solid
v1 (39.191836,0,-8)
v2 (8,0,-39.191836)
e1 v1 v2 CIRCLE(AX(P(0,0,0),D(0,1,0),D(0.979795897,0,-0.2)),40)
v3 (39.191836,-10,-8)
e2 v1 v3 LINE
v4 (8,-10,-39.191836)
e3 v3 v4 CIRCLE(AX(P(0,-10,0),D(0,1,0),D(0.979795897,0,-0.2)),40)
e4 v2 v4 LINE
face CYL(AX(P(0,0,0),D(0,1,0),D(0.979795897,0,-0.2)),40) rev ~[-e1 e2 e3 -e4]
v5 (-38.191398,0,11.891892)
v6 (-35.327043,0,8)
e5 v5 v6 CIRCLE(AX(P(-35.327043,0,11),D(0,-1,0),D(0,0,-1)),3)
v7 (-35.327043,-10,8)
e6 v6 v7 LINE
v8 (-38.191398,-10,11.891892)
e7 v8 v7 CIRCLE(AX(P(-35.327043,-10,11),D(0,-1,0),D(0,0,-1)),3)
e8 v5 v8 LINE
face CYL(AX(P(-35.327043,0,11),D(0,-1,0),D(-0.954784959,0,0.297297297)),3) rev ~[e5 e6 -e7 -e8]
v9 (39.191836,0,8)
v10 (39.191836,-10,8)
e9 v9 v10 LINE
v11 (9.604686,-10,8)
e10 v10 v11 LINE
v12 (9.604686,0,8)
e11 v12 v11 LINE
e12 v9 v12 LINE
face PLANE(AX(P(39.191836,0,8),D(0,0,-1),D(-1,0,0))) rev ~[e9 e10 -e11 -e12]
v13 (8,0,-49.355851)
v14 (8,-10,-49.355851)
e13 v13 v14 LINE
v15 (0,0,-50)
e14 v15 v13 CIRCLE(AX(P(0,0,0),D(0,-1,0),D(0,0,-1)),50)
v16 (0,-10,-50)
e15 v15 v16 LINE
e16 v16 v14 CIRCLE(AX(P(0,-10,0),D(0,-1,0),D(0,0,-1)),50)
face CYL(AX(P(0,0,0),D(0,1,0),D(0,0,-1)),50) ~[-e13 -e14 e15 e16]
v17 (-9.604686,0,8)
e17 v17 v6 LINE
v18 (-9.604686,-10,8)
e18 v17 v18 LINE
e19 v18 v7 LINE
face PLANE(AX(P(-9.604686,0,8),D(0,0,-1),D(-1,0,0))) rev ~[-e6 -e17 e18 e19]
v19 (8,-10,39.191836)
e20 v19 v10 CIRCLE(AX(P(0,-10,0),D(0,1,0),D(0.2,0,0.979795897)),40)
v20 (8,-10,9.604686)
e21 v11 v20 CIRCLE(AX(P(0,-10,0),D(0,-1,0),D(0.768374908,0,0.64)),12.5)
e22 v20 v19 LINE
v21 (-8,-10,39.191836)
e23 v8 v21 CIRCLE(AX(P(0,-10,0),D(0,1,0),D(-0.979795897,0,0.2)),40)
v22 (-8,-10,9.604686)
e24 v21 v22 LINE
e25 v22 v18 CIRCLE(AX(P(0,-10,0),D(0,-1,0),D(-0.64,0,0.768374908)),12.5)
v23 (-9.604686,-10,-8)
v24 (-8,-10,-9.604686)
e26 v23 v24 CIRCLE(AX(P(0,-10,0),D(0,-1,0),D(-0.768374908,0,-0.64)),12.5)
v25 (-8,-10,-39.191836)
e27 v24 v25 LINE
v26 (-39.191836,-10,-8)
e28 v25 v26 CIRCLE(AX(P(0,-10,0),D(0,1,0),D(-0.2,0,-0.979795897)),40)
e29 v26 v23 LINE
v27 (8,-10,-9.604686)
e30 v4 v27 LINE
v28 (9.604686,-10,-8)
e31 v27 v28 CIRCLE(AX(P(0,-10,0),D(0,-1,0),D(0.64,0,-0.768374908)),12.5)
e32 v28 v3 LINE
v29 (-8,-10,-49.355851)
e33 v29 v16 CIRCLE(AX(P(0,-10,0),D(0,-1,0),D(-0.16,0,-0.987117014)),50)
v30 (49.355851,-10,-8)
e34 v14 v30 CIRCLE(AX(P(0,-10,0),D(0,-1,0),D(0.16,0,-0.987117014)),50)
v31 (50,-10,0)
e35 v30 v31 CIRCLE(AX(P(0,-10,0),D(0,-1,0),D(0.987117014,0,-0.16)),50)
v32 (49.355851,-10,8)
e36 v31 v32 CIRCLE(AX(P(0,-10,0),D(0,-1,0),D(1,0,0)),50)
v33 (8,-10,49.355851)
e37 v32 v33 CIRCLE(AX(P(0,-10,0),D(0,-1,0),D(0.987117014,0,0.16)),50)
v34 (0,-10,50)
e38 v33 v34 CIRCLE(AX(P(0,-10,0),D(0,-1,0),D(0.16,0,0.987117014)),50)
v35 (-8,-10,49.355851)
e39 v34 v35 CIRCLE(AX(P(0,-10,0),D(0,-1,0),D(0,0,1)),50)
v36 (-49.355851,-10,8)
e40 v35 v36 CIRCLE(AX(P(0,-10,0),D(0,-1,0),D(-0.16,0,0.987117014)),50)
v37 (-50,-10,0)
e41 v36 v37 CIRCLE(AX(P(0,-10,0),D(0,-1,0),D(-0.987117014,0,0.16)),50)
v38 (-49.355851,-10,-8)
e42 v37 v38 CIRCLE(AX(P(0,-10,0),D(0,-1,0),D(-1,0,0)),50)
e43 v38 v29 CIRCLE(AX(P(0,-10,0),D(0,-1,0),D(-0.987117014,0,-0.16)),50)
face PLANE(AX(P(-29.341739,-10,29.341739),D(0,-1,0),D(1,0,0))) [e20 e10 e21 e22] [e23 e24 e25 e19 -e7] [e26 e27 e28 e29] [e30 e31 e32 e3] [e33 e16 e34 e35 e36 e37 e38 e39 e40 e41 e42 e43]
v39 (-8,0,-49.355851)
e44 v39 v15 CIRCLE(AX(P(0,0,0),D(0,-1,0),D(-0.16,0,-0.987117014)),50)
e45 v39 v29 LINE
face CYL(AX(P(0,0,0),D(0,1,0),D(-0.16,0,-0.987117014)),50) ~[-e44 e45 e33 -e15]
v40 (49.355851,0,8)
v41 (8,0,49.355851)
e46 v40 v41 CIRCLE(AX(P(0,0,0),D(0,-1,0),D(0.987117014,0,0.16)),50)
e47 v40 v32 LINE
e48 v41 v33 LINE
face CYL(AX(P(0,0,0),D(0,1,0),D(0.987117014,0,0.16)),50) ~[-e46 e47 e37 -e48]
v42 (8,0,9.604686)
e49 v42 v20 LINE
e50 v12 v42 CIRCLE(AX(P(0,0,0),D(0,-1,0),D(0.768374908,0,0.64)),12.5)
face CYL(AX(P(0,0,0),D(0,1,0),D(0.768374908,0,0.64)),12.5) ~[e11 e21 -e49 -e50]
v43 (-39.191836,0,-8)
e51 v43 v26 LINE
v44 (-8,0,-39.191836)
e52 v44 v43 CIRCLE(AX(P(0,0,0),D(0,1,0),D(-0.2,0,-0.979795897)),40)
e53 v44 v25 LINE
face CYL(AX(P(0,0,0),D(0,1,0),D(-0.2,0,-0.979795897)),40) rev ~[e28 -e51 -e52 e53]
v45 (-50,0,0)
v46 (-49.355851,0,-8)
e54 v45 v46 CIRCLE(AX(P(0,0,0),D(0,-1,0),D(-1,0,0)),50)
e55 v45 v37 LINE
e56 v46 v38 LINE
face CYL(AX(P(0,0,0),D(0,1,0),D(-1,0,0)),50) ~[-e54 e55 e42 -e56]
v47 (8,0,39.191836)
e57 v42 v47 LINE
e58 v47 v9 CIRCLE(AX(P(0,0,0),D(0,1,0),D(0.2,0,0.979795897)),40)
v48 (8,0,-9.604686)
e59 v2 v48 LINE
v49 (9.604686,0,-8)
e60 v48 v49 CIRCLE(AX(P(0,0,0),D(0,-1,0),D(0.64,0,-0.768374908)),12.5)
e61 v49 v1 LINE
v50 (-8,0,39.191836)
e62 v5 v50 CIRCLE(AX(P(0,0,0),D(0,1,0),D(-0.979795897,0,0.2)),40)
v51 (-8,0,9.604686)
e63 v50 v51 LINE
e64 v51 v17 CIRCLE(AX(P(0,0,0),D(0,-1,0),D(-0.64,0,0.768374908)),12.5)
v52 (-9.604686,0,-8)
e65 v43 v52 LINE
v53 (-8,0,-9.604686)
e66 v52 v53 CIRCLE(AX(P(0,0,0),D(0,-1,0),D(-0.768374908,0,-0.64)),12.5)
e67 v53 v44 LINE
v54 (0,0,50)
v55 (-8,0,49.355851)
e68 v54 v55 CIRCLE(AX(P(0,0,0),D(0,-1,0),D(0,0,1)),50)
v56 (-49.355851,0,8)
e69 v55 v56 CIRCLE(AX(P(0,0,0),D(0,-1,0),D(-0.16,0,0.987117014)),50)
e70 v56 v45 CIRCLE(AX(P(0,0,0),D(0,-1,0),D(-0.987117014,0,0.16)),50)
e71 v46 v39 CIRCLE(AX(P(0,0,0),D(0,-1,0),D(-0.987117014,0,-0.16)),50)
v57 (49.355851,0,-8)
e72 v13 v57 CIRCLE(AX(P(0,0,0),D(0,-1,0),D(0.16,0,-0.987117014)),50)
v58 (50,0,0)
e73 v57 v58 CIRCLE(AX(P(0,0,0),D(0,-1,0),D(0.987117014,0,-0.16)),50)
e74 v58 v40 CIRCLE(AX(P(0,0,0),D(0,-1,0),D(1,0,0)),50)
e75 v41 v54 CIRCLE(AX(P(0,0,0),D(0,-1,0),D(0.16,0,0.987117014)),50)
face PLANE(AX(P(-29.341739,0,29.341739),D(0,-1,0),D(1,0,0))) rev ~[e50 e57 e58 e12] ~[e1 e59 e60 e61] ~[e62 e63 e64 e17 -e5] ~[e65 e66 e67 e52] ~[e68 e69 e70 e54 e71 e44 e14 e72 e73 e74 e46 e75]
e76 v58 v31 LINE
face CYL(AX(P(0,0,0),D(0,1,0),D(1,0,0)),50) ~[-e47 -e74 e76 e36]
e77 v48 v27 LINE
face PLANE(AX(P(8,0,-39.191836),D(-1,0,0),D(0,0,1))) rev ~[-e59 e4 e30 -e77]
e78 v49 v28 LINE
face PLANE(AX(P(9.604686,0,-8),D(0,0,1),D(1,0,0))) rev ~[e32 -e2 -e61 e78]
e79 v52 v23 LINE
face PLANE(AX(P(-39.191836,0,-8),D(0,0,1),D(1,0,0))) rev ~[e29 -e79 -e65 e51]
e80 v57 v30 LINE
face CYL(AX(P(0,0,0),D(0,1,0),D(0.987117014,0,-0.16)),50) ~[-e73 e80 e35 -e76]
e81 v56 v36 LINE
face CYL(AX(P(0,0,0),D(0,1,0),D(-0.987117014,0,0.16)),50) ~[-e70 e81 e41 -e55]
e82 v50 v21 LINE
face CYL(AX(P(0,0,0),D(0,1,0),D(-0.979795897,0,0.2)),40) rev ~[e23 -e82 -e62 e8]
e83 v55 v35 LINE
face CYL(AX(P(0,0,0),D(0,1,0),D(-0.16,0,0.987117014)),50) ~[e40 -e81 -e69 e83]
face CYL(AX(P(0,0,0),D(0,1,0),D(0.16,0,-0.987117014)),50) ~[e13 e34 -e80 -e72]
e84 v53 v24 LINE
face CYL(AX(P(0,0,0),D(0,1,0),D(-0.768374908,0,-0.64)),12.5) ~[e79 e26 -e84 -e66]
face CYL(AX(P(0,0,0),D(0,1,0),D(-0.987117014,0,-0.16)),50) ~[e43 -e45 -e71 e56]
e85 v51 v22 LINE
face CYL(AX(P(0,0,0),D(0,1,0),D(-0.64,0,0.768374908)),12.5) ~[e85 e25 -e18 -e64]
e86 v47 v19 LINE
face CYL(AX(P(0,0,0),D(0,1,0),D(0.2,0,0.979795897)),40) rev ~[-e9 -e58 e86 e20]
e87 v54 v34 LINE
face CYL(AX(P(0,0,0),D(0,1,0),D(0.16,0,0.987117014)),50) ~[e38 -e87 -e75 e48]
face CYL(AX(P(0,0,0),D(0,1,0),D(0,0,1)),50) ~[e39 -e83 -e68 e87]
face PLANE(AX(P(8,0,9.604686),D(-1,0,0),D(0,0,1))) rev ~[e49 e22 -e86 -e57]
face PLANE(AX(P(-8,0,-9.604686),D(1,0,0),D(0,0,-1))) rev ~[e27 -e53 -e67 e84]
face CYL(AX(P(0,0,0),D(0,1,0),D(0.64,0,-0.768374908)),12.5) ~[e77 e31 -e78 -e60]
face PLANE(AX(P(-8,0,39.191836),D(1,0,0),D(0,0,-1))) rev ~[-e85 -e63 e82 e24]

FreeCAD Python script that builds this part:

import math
import FreeCAD as App
import Part
import Sketcher
from FreeCAD import Vector
Q = App.Units.Quantity


def edges_at(feature, points):
    """Names of the edges that pass closest to the given points."""
    edges = feature.Shape.Edges
    near = lambda p: min(range(len(edges)), key=lambda i: edges[i].distToShape(Part.Vertex(*p))[0])
    return sorted({f"Edge{near(p) + 1}" for p in points})

doc = App.newDocument("Part")
body = doc.addObject("PartDesign::Body", "Body")

sketch1 = body.newObject("Sketcher::SketchObject", "Sketch")
sketch1.AttachmentSupport = (doc.getObject("XZ_Plane"), [""])
sketch1.MapMode = "FlatFace"
sketch1.addGeometry(Part.ArcOfCircle(Part.Circle(Vector(0, 0, 0), Vector(0, 0, 1), 50), math.radians(-99.21), math.radians(-90)), False)
sketch1.addGeometry(Part.ArcOfCircle(Part.Circle(Vector(0, 0, 0), Vector(0, 0, 1), 50), math.radians(-90), math.radians(-80.79)), False)
sketch1.addGeometry(Part.ArcOfCircle(Part.Circle(Vector(0, 0, 0), Vector(0, 0, 1), 50), math.radians(-81), math.radians(-9)), False)
sketch1.addGeometry(Part.ArcOfCircle(Part.Circle(Vector(0, 0, 0), Vector(0, 0, 1), 50), math.radians(-9.21), math.radians(0)), False)
sketch1.addGeometry(Part.ArcOfCircle(Part.Circle(Vector(0, 0, 0), Vector(0, 0, 1), 50), math.radians(0), math.radians(9.21)), False)
sketch1.addGeometry(Part.ArcOfCircle(Part.Circle(Vector(0, 0, 0), Vector(0, 0, 1), 50), math.radians(9), math.radians(81)), False)
sketch1.addGeometry(Part.ArcOfCircle(Part.Circle(Vector(0, 0, 0), Vector(0, 0, 1), 50), math.radians(80.79), math.radians(90)), False)
sketch1.addGeometry(Part.ArcOfCircle(Part.Circle(Vector(0, 0, 0), Vector(0, 0, 1), 50), math.radians(90), math.radians(99.21)), False)
sketch1.addGeometry(Part.ArcOfCircle(Part.Circle(Vector(0, 0, 0), Vector(0, 0, 1), 50), math.radians(99), math.radians(171)), False)
sketch1.addGeometry(Part.ArcOfCircle(Part.Circle(Vector(0, 0, 0), Vector(0, 0, 1), 50), math.radians(170.79), math.radians(180)), False)
sketch1.addGeometry(Part.ArcOfCircle(Part.Circle(Vector(0, 0, 0), Vector(0, 0, 1), 50), math.radians(180), math.radians(189.21)), False)
sketch1.addGeometry(Part.ArcOfCircle(Part.Circle(Vector(0, 0, 0), Vector(0, 0, 1), 50), math.radians(-171), math.radians(-99)), False)
sketch1.addGeometry(Part.LineSegment(Vector(-8, -9.6, 0), Vector(-8, -39.2, 0)), False)
sketch1.addGeometry(Part.ArcOfCircle(Part.Circle(Vector(0, 0, 0), Vector(0, 0, 1), 40), math.radians(-168), math.radians(-102)), False)
sketch1.addGeometry(Part.LineSegment(Vector(-39.2, -8, 0), Vector(-9.6, -8, 0)), False)
sketch1.addGeometry(Part.ArcOfCircle(Part.Circle(Vector(0, 0, 0), Vector(0, 0, 1), 12.5), math.radians(-140.21), math.radians(-129.79)), False)
sketch1.addGeometry(Part.ArcOfCircle(Part.Circle(Vector(0, 0, 0), Vector(0, 0, 1), 40), math.radians(-78), math.radians(-12)), False)
sketch1.addGeometry(Part.LineSegment(Vector(8, -39.2, 0), Vector(8, -9.6, 0)), False)
sketch1.addGeometry(Part.ArcOfCircle(Part.Circle(Vector(0, 0, 0), Vector(0, 0, 1), 12.5), math.radians(-50.21), math.radians(-39.79)), False)
sketch1.addGeometry(Part.LineSegment(Vector(9.6, -8, 0), Vector(39.2, -8, 0)), False)
sketch1.addGeometry(Part.ArcOfCircle(Part.Circle(Vector(0, 0, 0), Vector(0, 0, 1), 40), math.radians(102), math.radians(168)), False)
sketch1.addGeometry(Part.LineSegment(Vector(-8, 39.2, 0), Vector(-8, 9.6, 0)), False)
sketch1.addGeometry(Part.ArcOfCircle(Part.Circle(Vector(0, 0, 0), Vector(0, 0, 1), 12.5), math.radians(129.79), math.radians(140.21)), False)
sketch1.addGeometry(Part.LineSegment(Vector(-9.6, 8, 0), Vector(-39.2, 8, 0)), False)
sketch1.addGeometry(Part.ArcOfCircle(Part.Circle(Vector(0, 0, 0), Vector(0, 0, 1), 5), math.radians(-90), math.radians(0)), False)
sketch1.addGeometry(Part.ArcOfCircle(Part.Circle(Vector(0, 0, 0), Vector(0, 0, 1), 5), math.radians(180), math.radians(270)), False)
sketch1.addGeometry(Part.ArcOfCircle(Part.Circle(Vector(0, 0, 0), Vector(0, 0, 1), 5), math.radians(90), math.radians(180)), False)
sketch1.addGeometry(Part.ArcOfCircle(Part.Circle(Vector(0, 0, 0), Vector(0, 0, 1), 5), math.radians(0), math.radians(90)), False)
sketch1.addGeometry(Part.ArcOfCircle(Part.Circle(Vector(0, 0, 0), Vector(0, 0, 1), 40), math.radians(12), math.radians(78)), False)
sketch1.addGeometry(Part.LineSegment(Vector(39.2, 8, 0), Vector(9.6, 8, 0)), False)
sketch1.addGeometry(Part.ArcOfCircle(Part.Circle(Vector(0, 0, 0), Vector(0, 0, 1), 12.5), math.radians(39.79), math.radians(50.21)), False)
sketch1.addGeometry(Part.LineSegment(Vector(8, 9.6, 0), Vector(8, 39.2, 0)), False)
sketch1.addConstraint(Sketcher.Constraint("Tangent", 0, 2, 1, 1))
sketch1.addConstraint(Sketcher.Constraint("Tangent", 1, 2, 2, 1))
sketch1.addConstraint(Sketcher.Constraint("Tangent", 2, 2, 3, 1))
sketch1.addConstraint(Sketcher.Constraint("Tangent", 3, 2, 4, 1))
sketch1.addConstraint(Sketcher.Constraint("Tangent", 4, 2, 5, 1))
sketch1.addConstraint(Sketcher.Constraint("Tangent", 5, 2, 6, 1))
sketch1.addConstraint(Sketcher.Constraint("Tangent", 6, 2, 7, 1))
sketch1.addConstraint(Sketcher.Constraint("Tangent", 7, 2, 8, 1))
sketch1.addConstraint(Sketcher.Constraint("Tangent", 8, 2, 9, 1))
sketch1.addConstraint(Sketcher.Constraint("Tangent", 9, 2, 10, 1))
sketch1.addConstraint(Sketcher.Constraint("Tangent", 10, 2, 11, 1))
sketch1.addConstraint(Sketcher.Constraint("Tangent", 11, 2, 0, 1))
sketch1.addConstraint(Sketcher.Constraint("Coincident", 12, 2, 13, 2))
sketch1.addConstraint(Sketcher.Constraint("Coincident", 13, 1, 14, 1))
sketch1.addConstraint(Sketcher.Constraint("Coincident", 14, 2, 15, 1))
sketch1.addConstraint(Sketcher.Constraint("Coincident", 15, 2, 12, 1))
sketch1.addConstraint(Sketcher.Constraint("Coincident", 16, 1, 17, 1))
sketch1.addConstraint(Sketcher.Constraint("Coincident", 17, 2, 18, 1))
sketch1.addConstraint(Sketcher.Constraint("Coincident", 18, 2, 19, 1))
sketch1.addConstraint(Sketcher.Constraint("Coincident", 19, 2, 16, 2))
sketch1.addConstraint(Sketcher.Constraint("Coincident", 20, 1, 21, 1))
sketch1.addConstraint(Sketcher.Constraint("Coincident", 21, 2, 22, 1))
sketch1.addConstraint(Sketcher.Constraint("Coincident", 22, 2, 23, 1))
sketch1.addConstraint(Sketcher.Constraint("Coincident", 23, 2, 20, 2))
sketch1.addConstraint(Sketcher.Constraint("Tangent", 24, 1, 25, 2))
sketch1.addConstraint(Sketcher.Constraint("Tangent", 25, 1, 26, 2))
sketch1.addConstraint(Sketcher.Constraint("Tangent", 26, 1, 27, 2))
sketch1.addConstraint(Sketcher.Constraint("Tangent", 27, 1, 24, 2))
sketch1.addConstraint(Sketcher.Constraint("Coincident", 28, 1, 29, 1))
sketch1.addConstraint(Sketcher.Constraint("Coincident", 29, 2, 30, 1))
sketch1.addConstraint(Sketcher.Constraint("Coincident", 30, 2, 31, 1))
sketch1.addConstraint(Sketcher.Constraint("Coincident", 31, 2, 28, 2))
sketch1.addConstraint(Sketcher.Constraint("Vertical", 12))
sketch1.addConstraint(Sketcher.Constraint("Horizontal", 14))
sketch1.addConstraint(Sketcher.Constraint("Vertical", 17))
sketch1.addConstraint(Sketcher.Constraint("Horizontal", 19))
sketch1.addConstraint(Sketcher.Constraint("Vertical", 21))
sketch1.addConstraint(Sketcher.Constraint("Horizontal", 23))
sketch1.addConstraint(Sketcher.Constraint("Horizontal", 29))
sketch1.addConstraint(Sketcher.Constraint("Vertical", 31))
sketch1.addConstraint(Sketcher.Constraint("Coincident", 0, 3, -1, 1))
sketch1.addConstraint(Sketcher.Constraint("Coincident", 2, 3, -1, 1))
sketch1.addConstraint(Sketcher.Constraint("Coincident", 4, 3, -1, 1))
sketch1.addConstraint(Sketcher.Constraint("Coincident", 6, 3, -1, 1))
sketch1.addConstraint(Sketcher.Constraint("Coincident", 8, 3, -1, 1))
sketch1.addConstraint(Sketcher.Constraint("Coincident", 13, 3, -1, 1))
sketch1.addConstraint(Sketcher.Constraint("Coincident", 15, 3, -1, 1))
sketch1.addConstraint(Sketcher.Constraint("Coincident", 16, 3, -1, 1))
sketch1.addConstraint(Sketcher.Constraint("Coincident", 18, 3, -1, 1))
sketch1.addConstraint(Sketcher.Constraint("Coincident", 20, 3, -1, 1))
sketch1.addConstraint(Sketcher.Constraint("Coincident", 22, 3, -1, 1))
sketch1.addConstraint(Sketcher.Constraint("Coincident", 24, 3, -1, 1))
sketch1.addConstraint(Sketcher.Constraint("Coincident", 28, 3, -1, 1))
sketch1.addConstraint(Sketcher.Constraint("Coincident", 30, 3, -1, 1))
sketch1.addConstraint(Sketcher.Constraint("Equal", 8, 9))
sketch1.addConstraint(Sketcher.Constraint("Equal", 13, 16))
sketch1.addConstraint(Sketcher.Constraint("Equal", 15, 18))
sketch1.addConstraint(Sketcher.Constraint("Equal", 16, 20))
sketch1.addConstraint(Sketcher.Constraint("Equal", 18, 22))
sketch1.addConstraint(Sketcher.Constraint("Equal", 24, 25))
sketch1.addConstraint(Sketcher.Constraint("Equal", 20, 28))
sketch1.addConstraint(Sketcher.Constraint("Equal", 22, 30))
sketch1.addConstraint(Sketcher.Constraint("PointOnObject", 0, 2, -2))
sketch1.addConstraint(Sketcher.Constraint("PointOnObject", 3, 2, -1))
sketch1.addConstraint(Sketcher.Constraint("PointOnObject", 6, 2, -2))
sketch1.addConstraint(Sketcher.Constraint("PointOnObject", 9, 2, -1))
sketch1.addConstraint(Sketcher.Constraint("PointOnObject", 24, 1, -2))
sketch1.addConstraint(Sketcher.Constraint("PointOnObject", 25, 1, -1))
sketch1.addConstraint(Sketcher.Constraint("PointOnObject", 26, 1, -2))
sketch1.addConstraint(Sketcher.Constraint("PointOnObject", 27, 1, -1))
sketch1.addConstraint(Sketcher.Constraint("Horizontal", 5, 2, 7, 2))
sketch1.addConstraint(Sketcher.Constraint("Horizontal", 4, 2, 8, 2))
sketch1.addConstraint(Sketcher.Constraint("Horizontal", 2, 2, 10, 2))
sketch1.addConstraint(Sketcher.Constraint("Horizontal", 1, 2, 11, 2))
sketch1.addConstraint(Sketcher.Constraint("Horizontal", 10, 2, 13, 1))
sketch1.addConstraint(Sketcher.Constraint("Horizontal", 12, 2, 16, 1))
sketch1.addConstraint(Sketcher.Constraint("Horizontal", 14, 2, 18, 2))
sketch1.addConstraint(Sketcher.Constraint("Horizontal", 8, 2, 22, 2))
sketch1.addConstraint(Sketcher.Constraint("Horizontal", 23, 2, 28, 1))
sketch1.addConstraint(Sketcher.Constraint("Horizontal", 21, 2, 30, 2))
sketch1.addConstraint(Sketcher.Constraint("Vertical", 2, 2, 4, 2))
sketch1.addConstraint(Sketcher.Constraint("Vertical", 1, 2, 5, 2))
sketch1.addConstraint(Sketcher.Constraint("Vertical", 11, 2, 12, 2))
sketch1.addConstraint(Sketcher.Constraint("Vertical", 15, 2, 20, 1))
sketch1.addConstraint(Sketcher.Constraint("Equal", 29, 12))
sketch1.addConstraint(Sketcher.Constraint("Radius", 0, Q("50 mm")))
sketch1.addConstraint(Sketcher.Constraint("Radius", 13, Q("40 mm")))
sketch1.addConstraint(Sketcher.Constraint("Radius", 24, Q("5 mm")))
sketch1.addConstraint(Sketcher.Constraint("Radius", 15, Q("12.5 mm")))
sketch1.addConstraint(Sketcher.Constraint("DistanceX", -1, 1, 1, 2, Q("8 mm")))
pad1 = body.newObject("PartDesign::Pad", "Pad")
pad1.Profile = sketch1
pad1.Length = 10

sketch2 = body.newObject("Sketcher::SketchObject", "Sketch001")
sketch2.AttachmentSupport = (doc.getObject("XZ_Plane"), [""])
sketch2.MapMode = "FlatFace"
sketch2.AttachmentOffset = App.Placement(Vector(0, 0, 10), App.Rotation())
sketch2.addGeometry(Part.LineSegment(Vector(7.6, 1.9, 0), Vector(4.6, 1.9, 0)), False)
sketch2.addGeometry(Part.ArcOfCircle(Part.Circle(Vector(0, 0, 0), Vector(0, 0, 1), 5), math.radians(23), math.radians(337)), False)
sketch2.addGeometry(Part.LineSegment(Vector(4.6, -1.9, 0), Vector(7.6, -1.9, 0)), False)
sketch2.addGeometry(Part.LineSegment(Vector(7.6, -1.9, 0), Vector(7.6, 1.9, 0)), False)
sketch2.addConstraint(Sketcher.Constraint("Coincident", 0, 2, 1, 1))
sketch2.addConstraint(Sketcher.Constraint("Coincident", 1, 2, 2, 1))
sketch2.addConstraint(Sketcher.Constraint("Coincident", 2, 2, 3, 1))
sketch2.addConstraint(Sketcher.Constraint("Coincident", 3, 2, 0, 1))
sketch2.addConstraint(Sketcher.Constraint("Horizontal", 0))
sketch2.addConstraint(Sketcher.Constraint("Horizontal", 2))
sketch2.addConstraint(Sketcher.Constraint("Vertical", 3))
sketch2.addConstraint(Sketcher.Constraint("Coincident", 1, 3, -1, 1))
sketch2.addConstraint(Sketcher.Constraint("Radius", 1, Q("5 mm")))
sketch2.addConstraint(Sketcher.Constraint("DistanceX", 0, 2, 0, 1, Q("2.99441 mm")))
sketch2.addConstraint(Sketcher.Constraint("DistanceY", 3, 1, 3, 2, Q("3.854461 mm")))
sketch2.addConstraint(Sketcher.Constraint("DistanceX", 2, 1, 2, 2, Q("2.994837 mm")))
pad2 = body.newObject("PartDesign::Pad", "Pad001")
pad2.Profile = sketch2
pad2.Length = 10
pad2.Reversed = True

sketch3 = body.newObject("Sketcher::SketchObject", "Sketch002")
sketch3.AttachmentSupport = (doc.getObject("XZ_Plane"), [""])
sketch3.MapMode = "FlatFace"
sketch3.AttachmentOffset = App.Placement(Vector(0, 0, 10), App.Rotation())
sketch3.addGeometry(Part.Circle(Vector(0, 0, 0), Vector(0, 0, 1), 5), False)
sketch3.addConstraint(Sketcher.Constraint("Coincident", 0, 3, -1, 1))
sketch3.addConstraint(Sketcher.Constraint("Diameter", 0, Q("10.010599 mm")))
pad3 = body.newObject("PartDesign::Pad", "Pad002")
pad3.Profile = sketch3
pad3.Length = 10
pad3.Reversed = True
doc.recompute()

fillet = body.newObject("PartDesign::Fillet", "Fillet")
fillet.Base = (pad3, edges_at(pad3, [(-39.192, -5, 8)]))
fillet.Radius = 3

doc.recompute()
